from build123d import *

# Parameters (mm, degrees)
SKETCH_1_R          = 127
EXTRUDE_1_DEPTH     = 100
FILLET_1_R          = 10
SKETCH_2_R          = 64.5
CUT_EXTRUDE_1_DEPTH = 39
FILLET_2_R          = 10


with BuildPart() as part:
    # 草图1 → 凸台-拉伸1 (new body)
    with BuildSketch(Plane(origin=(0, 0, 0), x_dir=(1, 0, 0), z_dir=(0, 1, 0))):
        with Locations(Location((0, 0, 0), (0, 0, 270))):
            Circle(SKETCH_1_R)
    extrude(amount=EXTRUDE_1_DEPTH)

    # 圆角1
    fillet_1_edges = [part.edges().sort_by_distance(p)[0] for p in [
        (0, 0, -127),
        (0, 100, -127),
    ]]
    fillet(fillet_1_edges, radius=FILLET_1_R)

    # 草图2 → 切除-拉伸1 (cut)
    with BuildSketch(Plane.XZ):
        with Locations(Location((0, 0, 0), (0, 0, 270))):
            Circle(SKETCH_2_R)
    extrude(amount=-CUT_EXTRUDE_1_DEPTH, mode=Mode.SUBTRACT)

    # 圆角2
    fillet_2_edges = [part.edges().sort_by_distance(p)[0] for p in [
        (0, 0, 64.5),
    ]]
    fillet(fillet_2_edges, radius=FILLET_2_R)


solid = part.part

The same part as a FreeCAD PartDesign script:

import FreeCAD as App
import Part
import Sketcher

V = App.Vector


def edges_at(feature, points):
    """Names of the edges that pass closest to the given points."""
    edges = feature.Shape.Edges
    near = lambda p: min(range(len(edges)), key=lambda i: edges[i].distToShape(Part.Vertex(*p))[0])
    return sorted({f"Edge{near(p) + 1}" for p in points})

doc = App.newDocument("Part")
params = doc.addObject("Spreadsheet::Sheet", "Params")
for row, (alias, value) in enumerate([
    ("sketch1_diameter", "254 mm"),
    ("pad1_length", "100 mm"),
    ("fillet_radius", "10 mm"),
    ("sketch2_diameter", "129 mm"),
    ("pocket1_length", "39 mm"),
    ("fillet2_radius", "10 mm"),
], start=1):
    params.set(f"A{row}", alias)
    params.set(f"B{row}", "=" + value)
    params.setAlias(f"B{row}", alias)

body = doc.addObject("PartDesign::Body", "Body")

# Sketch on XZ plane
sketch1 = body.newObject("Sketcher::SketchObject", "Sketch")
sketch1.AttachmentSupport = (doc.getObject("XZ_Plane"), [""])
sketch1.MapMode = "FlatFace"
sketch1.addGeometry(Part.Circle(V(0, 0, 0), V(0, 0, 1), 127), False)
sketch1.addConstraint(Sketcher.Constraint("Coincident", 0, 3, -1, 1))
sketch1.addConstraint(Sketcher.Constraint("Diameter", 0, 254.0))
sketch1.setExpression("Constraints[1]", "Params.sketch1_diameter")
pad1 = body.newObject("PartDesign::Pad", "Pad")
pad1.Profile = sketch1
pad1.setExpression("Length", "Params.pad1_length")
pad1.Reversed = True
doc.recompute()

fillet = body.newObject("PartDesign::Fillet", "Fillet")
fillet.Base = (pad1, edges_at(pad1, [(0, 0, -127), (0, 100, -127)]))
fillet.setExpression("Radius", "Params.fillet_radius")

# Sketch on XZ plane
sketch2 = body.newObject("Sketcher::SketchObject", "Sketch001")
sketch2.AttachmentSupport = (doc.getObject("XZ_Plane"), [""])
sketch2.MapMode = "FlatFace"
sketch2.addGeometry(Part.Circle(V(0, 0, 0), V(0, 0, 1), 64), False)
sketch2.addConstraint(Sketcher.Constraint("Coincident", 0, 3, -1, 1))
sketch2.addConstraint(Sketcher.Constraint("Diameter", 0, 129.0))
sketch2.setExpression("Constraints[1]", "Params.sketch2_diameter")
pocket1 = body.newObject("PartDesign::Pocket", "Pocket")
pocket1.Profile = sketch2
pocket1.setExpression("Length", "Params.pocket1_length")
doc.recompute()

fillet2 = body.newObject("PartDesign::Fillet", "Fillet001")
fillet2.Base = (pocket1, edges_at(pocket1, [(0, 0, 64.5)]))
fillet2.setExpression("Radius", "Params.fillet2_radius")

doc.recompute()
